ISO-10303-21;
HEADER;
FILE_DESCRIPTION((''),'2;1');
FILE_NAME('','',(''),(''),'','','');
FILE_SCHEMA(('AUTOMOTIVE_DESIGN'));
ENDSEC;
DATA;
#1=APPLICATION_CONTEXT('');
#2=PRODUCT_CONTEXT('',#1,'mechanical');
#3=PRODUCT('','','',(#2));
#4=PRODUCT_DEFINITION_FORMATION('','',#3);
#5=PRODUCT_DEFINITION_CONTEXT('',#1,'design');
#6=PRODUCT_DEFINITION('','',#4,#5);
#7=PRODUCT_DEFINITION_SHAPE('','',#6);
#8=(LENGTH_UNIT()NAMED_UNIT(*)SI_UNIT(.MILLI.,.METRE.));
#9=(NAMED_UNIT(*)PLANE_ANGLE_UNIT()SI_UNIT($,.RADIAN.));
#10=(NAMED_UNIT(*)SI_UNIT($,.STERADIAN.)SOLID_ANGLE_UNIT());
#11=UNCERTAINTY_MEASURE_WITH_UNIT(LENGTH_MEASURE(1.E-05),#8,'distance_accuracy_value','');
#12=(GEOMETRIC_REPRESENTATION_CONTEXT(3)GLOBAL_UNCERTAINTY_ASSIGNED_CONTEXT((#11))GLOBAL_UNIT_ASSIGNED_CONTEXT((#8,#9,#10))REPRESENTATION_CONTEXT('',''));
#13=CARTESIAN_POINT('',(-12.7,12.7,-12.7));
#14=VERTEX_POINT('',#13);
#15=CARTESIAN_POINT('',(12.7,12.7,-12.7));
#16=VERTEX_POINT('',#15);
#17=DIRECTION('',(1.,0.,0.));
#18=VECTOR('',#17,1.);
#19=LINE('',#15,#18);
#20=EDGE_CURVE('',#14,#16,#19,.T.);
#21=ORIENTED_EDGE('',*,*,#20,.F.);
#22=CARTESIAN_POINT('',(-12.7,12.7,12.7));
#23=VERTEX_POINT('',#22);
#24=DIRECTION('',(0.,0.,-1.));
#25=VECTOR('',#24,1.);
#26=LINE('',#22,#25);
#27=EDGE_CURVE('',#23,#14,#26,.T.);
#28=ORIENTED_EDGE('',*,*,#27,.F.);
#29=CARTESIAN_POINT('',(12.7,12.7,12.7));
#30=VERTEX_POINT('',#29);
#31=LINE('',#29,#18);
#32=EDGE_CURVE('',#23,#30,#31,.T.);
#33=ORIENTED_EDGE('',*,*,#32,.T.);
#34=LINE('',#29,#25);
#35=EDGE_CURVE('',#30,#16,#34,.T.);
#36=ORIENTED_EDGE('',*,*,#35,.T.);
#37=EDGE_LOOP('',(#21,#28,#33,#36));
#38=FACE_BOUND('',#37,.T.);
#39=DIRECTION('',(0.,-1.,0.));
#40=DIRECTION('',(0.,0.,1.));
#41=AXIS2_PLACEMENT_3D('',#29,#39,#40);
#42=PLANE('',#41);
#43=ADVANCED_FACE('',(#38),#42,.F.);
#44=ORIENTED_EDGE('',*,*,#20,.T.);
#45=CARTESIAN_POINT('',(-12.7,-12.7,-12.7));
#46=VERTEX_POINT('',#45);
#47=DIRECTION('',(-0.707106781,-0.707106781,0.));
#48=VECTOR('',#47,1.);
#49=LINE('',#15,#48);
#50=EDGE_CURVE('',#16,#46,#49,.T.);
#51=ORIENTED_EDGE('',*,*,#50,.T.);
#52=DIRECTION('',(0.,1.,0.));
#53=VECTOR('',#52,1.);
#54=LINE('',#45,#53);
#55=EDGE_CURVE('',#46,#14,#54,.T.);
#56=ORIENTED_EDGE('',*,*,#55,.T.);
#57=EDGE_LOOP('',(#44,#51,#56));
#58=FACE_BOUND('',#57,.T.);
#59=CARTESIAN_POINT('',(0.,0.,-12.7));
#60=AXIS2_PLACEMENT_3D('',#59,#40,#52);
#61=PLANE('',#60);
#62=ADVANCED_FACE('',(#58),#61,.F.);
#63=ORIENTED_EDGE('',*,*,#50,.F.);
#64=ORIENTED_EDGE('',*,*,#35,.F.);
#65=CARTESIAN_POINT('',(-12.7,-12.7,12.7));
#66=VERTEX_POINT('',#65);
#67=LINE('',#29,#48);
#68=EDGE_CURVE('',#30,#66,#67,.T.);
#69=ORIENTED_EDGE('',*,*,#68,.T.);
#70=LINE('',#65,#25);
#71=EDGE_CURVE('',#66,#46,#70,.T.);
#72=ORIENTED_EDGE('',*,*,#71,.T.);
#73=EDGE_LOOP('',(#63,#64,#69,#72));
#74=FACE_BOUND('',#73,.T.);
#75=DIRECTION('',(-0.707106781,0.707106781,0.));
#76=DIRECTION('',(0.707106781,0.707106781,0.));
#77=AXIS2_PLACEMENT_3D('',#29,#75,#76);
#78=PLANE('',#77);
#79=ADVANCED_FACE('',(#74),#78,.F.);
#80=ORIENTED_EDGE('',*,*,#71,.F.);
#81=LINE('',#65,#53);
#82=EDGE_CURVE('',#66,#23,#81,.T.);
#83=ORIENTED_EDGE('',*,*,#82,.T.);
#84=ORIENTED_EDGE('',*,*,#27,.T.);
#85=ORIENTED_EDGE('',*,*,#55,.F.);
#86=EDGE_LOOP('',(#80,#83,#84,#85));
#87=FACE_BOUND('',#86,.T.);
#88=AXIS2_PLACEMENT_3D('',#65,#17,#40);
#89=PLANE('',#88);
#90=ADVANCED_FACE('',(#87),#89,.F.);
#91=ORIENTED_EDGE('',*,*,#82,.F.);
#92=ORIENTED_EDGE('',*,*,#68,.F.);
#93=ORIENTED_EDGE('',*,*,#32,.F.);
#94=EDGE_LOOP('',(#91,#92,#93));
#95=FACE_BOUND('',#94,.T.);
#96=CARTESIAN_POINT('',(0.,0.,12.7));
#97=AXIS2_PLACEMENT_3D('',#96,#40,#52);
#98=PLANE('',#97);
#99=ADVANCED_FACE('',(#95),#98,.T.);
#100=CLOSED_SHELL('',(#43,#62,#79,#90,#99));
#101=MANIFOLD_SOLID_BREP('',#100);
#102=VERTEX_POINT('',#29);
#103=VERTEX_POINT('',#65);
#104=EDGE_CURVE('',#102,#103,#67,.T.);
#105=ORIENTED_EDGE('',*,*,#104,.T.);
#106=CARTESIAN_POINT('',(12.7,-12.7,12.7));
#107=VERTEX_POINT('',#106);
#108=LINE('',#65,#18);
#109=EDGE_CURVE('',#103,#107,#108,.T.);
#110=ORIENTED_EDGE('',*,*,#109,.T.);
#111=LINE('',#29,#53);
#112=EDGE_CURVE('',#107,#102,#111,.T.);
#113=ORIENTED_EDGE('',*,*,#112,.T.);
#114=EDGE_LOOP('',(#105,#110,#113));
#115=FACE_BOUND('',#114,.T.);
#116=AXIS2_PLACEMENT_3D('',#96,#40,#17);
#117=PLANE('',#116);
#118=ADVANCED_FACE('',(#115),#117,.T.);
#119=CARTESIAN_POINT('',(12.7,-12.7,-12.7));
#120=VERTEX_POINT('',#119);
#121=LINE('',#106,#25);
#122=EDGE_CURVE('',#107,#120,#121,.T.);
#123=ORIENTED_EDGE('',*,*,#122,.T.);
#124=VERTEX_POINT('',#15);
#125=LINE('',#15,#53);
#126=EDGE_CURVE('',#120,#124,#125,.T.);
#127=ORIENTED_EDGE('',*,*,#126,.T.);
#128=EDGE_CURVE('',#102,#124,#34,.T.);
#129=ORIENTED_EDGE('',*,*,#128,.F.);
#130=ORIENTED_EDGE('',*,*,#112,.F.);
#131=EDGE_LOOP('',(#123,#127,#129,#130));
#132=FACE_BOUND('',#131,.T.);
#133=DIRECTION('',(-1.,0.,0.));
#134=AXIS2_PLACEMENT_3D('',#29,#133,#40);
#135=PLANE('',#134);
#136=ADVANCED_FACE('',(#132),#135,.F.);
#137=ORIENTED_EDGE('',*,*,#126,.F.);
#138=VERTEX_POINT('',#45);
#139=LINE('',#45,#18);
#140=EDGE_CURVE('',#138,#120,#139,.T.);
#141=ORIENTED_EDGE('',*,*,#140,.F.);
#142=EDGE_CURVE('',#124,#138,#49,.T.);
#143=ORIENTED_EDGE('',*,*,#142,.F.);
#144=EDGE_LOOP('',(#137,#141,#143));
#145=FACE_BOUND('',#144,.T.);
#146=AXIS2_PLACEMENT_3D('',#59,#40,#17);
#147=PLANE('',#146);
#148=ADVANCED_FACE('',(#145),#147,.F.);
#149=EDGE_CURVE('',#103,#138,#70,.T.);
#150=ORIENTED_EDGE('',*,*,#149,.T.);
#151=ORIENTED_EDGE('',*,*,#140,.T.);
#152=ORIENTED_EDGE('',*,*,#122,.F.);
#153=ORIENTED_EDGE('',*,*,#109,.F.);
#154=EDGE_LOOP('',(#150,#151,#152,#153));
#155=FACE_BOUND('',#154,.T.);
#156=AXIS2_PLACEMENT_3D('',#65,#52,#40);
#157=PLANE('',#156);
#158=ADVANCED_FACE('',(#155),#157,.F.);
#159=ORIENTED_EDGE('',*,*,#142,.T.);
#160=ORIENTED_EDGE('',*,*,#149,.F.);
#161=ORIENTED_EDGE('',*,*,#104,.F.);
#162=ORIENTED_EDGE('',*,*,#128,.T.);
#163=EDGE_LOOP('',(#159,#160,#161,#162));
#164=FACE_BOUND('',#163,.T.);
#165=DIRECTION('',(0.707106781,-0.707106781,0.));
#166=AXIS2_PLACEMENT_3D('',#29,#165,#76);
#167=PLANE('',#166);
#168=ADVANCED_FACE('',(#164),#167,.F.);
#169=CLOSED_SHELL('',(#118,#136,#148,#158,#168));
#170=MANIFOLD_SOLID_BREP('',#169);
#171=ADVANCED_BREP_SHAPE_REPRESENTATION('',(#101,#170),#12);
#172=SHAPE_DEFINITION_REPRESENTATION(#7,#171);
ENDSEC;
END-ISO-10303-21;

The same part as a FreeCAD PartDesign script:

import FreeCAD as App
import Part
import Sketcher

V = App.Vector
Q = App.Units.Quantity

doc = App.newDocument("Part")
body = doc.addObject("PartDesign::Body", "Body")

sketch1 = doc.addObject("Sketcher::SketchObject", "Sketch")
body.addObject(sketch1)
sketch1.AttachmentSupport = (doc.XY_Plane, [""])
sketch1.MapMode = "FlatFace"
sketch1.addGeometry(Part.LineSegment(V(-12.7, -12.7, 0), V(12.7, -12.7, 0)), False)
sketch1.addGeometry(Part.LineSegment(V(12.7, -12.7, 0), V(12.7, 12.7, 0)), False)
sketch1.addGeometry(Part.LineSegment(V(12.7, 12.7, 0), V(-12.7, -12.7, 0)), False)
sketch1.addConstraint(Sketcher.Constraint("Coincident", 0, 2, 1, 1))
sketch1.addConstraint(Sketcher.Constraint("Coincident", 1, 2, 2, 1))
sketch1.addConstraint(Sketcher.Constraint("Coincident", 2, 2, 0, 1))
sketch1.addConstraint(Sketcher.Constraint("Horizontal", 0))
sketch1.addConstraint(Sketcher.Constraint("Vertical", 1))
sketch1.addConstraint(Sketcher.Constraint("Symmetric", 1, 2, 2, 2, -1, 1))
sketch1.addConstraint(Sketcher.Constraint("Equal", 0, 1))
sketch1.addConstraint(Sketcher.Constraint("DistanceX", 0, 1, 0, 2, Q("1 in")))
pad1 = doc.addObject("PartDesign::Pad", "Pad")
body.addObject(pad1)
pad1.Profile = sketch1
pad1.Length = Q("1 in")
pad1.Midplane = True
body2 = doc.addObject("PartDesign::Body", "Body001")
doc.recompute()

mirroring = doc.addObject("Part::Mirroring", "Mirroring")
mirroring.Source = body
mirroring.Base = V(12.7, 12.7, 12.7)
mirroring.Normal = V(0.707106781, -0.707106781, 0)
body2.BaseFeature = mirroring
doc.recompute()
mirroring.Visibility = False

doc.recompute()
